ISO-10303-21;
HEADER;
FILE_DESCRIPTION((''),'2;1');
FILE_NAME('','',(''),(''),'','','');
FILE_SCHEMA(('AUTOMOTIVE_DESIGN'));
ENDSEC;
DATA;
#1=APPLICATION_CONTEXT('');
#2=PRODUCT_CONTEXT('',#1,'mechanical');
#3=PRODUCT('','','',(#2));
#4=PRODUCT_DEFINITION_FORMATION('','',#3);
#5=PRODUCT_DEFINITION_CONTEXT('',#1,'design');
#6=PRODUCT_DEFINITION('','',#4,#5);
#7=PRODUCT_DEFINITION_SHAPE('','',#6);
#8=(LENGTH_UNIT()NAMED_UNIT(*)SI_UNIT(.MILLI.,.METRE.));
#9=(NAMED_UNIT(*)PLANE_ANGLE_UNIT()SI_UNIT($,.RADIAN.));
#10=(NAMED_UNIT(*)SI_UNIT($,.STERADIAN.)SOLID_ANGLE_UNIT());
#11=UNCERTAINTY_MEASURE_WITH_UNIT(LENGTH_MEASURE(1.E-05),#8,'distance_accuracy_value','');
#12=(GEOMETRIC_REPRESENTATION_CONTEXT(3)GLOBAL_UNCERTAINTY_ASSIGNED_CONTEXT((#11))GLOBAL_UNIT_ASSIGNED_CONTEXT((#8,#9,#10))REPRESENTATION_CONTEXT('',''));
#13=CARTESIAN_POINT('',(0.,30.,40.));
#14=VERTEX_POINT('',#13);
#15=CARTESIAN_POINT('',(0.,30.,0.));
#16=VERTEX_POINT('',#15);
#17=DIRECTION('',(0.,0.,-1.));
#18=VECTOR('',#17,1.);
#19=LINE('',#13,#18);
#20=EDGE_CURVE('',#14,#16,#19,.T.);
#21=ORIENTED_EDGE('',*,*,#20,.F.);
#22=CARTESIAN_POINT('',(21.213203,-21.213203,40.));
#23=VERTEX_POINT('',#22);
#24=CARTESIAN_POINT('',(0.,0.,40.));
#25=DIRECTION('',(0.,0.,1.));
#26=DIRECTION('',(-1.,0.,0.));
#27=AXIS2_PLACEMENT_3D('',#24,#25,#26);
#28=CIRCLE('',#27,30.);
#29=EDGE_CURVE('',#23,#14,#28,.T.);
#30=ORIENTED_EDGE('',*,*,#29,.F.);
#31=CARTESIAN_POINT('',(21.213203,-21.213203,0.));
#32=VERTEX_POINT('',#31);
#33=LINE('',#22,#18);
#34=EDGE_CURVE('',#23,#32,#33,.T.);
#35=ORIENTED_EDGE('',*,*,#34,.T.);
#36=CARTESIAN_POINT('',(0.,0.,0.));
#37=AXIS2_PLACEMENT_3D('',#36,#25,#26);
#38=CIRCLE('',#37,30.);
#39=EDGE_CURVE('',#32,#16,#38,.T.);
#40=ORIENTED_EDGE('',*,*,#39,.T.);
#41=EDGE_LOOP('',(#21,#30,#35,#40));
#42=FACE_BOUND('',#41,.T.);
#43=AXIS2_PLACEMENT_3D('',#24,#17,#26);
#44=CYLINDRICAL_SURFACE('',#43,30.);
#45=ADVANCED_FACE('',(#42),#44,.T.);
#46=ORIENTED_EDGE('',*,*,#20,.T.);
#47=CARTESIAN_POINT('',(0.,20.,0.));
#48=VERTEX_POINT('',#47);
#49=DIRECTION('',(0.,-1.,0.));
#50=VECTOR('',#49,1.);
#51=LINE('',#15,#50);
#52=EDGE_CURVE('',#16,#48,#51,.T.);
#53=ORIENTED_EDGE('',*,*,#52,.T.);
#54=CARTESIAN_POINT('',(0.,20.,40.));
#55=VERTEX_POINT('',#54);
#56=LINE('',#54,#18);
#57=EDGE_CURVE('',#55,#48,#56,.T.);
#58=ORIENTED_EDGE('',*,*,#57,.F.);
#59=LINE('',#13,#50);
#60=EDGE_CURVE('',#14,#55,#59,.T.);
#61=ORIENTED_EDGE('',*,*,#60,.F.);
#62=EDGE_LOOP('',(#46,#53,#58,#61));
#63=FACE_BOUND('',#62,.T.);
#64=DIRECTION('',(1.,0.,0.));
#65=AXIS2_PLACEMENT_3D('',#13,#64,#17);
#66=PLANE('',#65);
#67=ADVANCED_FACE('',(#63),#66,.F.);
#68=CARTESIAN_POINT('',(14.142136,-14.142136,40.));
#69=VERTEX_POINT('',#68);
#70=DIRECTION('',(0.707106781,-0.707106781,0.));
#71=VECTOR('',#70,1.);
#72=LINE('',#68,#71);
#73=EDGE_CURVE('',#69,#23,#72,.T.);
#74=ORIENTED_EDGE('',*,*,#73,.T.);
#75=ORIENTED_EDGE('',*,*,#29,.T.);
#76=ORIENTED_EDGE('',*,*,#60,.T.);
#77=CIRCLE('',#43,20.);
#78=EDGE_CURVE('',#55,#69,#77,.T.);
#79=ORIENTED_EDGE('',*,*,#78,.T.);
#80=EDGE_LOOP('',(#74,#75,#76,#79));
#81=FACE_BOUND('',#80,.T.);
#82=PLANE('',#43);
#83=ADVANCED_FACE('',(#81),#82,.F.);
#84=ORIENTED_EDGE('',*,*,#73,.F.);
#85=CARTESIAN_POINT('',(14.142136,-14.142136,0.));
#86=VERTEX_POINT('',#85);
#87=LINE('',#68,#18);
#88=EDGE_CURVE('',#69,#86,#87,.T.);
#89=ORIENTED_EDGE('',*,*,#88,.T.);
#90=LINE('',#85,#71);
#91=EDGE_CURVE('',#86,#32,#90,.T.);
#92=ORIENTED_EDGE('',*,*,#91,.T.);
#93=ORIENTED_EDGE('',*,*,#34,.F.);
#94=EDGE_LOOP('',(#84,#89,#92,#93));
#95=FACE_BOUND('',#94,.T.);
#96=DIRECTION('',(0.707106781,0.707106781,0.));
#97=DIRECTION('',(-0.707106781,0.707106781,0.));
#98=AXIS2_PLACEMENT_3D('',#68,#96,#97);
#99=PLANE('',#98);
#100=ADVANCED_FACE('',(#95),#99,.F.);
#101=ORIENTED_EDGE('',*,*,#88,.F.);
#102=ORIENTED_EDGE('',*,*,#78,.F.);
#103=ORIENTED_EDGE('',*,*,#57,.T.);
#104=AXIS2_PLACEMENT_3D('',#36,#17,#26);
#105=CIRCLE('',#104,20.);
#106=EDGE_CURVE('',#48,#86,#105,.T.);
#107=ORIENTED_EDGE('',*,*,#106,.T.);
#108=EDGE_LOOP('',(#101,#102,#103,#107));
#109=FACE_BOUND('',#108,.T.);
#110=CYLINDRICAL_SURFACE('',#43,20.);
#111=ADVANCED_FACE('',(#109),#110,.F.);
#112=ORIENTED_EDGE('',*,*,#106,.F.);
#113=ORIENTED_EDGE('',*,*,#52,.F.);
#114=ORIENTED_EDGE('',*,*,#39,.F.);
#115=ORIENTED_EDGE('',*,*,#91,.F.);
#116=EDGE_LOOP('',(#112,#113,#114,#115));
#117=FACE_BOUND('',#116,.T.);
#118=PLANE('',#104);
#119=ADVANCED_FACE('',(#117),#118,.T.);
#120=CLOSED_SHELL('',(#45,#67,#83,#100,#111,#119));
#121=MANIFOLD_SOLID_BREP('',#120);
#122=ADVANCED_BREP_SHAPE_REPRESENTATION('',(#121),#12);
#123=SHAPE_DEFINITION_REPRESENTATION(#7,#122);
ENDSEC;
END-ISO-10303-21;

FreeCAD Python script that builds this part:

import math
import FreeCAD as App
import Part
import Sketcher
Q = App.Units.Quantity

doc = App.newDocument("Part")
body = doc.addObject("PartDesign::Body", "Body")

# Sketch on XY plane
sketch1 = body.newObject("Sketcher::SketchObject", "Sketch")
sketch1.AttachmentSupport = (doc.getObject("XY_Plane"), [""])
sketch1.MapMode = "FlatFace"
sketch1.addGeometry(Part.LineSegment(App.Vector(0, 30, 0), App.Vector(0, 20, 0)), False)
sketch1.addGeometry(Part.ArcOfCircle(Part.Circle(App.Vector(0, 0, 0), App.Vector(0, 0, 1), 20), math.radians(-45), math.radians(90)), False)
sketch1.addGeometry(Part.LineSegment(App.Vector(14.142136, -14.142136, 0), App.Vector(21.213203, -21.213203, 0)), False)
sketch1.addGeometry(Part.ArcOfCircle(Part.Circle(App.Vector(0, 0, 0), App.Vector(0, 0, 1), 30), math.radians(-45), math.radians(90)), False)
sketch1.addConstraint(Sketcher.Constraint("Coincident", 0, 2, 1, 2))
sketch1.addConstraint(Sketcher.Constraint("Coincident", 1, 1, 2, 1))
sketch1.addConstraint(Sketcher.Constraint("Coincident", 2, 2, 3, 1))
sketch1.addConstraint(Sketcher.Constraint("Coincident", 3, 2, 0, 1))
sketch1.addConstraint(Sketcher.Constraint("Vertical", 0))
sketch1.addConstraint(Sketcher.Constraint("Coincident", 1, 3, -1, 1))
sketch1.addConstraint(Sketcher.Constraint("Coincident", 3, 3, -1, 1))
sketch1.addConstraint(Sketcher.Constraint("PointOnObject", 0, 2, -2))
sketch1.addConstraint(Sketcher.Constraint("Radius", 1, 20.0))
sketch1.addConstraint(Sketcher.Constraint("Radius", 3, 30.0))
sketch1.addConstraint(Sketcher.Constraint("Angle", 2, Q("-45 deg")))
sketch1.addConstraint(Sketcher.Constraint("DistanceX", -1, 1, 1, 1, 14.142136))
pad1 = body.newObject("PartDesign::Pad", "Pad")
pad1.Profile = sketch1
pad1.Length = 40

doc.recompute()
